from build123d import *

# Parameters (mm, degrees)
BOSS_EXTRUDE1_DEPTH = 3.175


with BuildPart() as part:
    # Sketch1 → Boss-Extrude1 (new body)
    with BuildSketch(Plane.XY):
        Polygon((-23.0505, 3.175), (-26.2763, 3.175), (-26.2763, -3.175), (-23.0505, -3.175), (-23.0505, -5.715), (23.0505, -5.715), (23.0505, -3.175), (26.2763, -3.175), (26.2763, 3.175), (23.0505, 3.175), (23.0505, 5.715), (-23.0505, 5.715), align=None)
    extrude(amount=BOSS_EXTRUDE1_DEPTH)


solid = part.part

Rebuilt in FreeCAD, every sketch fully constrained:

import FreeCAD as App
import Part
import Sketcher

V = App.Vector
Q = App.Units.Quantity


def add_polygon(sketch, points):
    """Adds a closed chain of lines whose ends are joined by coincident constraints."""
    first, n = sketch.GeometryCount, len(points)
    for a, b in zip(points, points[1:] + points[:1]):
        sketch.addGeometry(Part.LineSegment(App.Vector(*a, 0), App.Vector(*b, 0)), False)
    for i in range(n):
        sketch.addConstraint(Sketcher.Constraint("Coincident", first + i, 2, first + (i + 1) % n, 1))

doc = App.newDocument("Part")
params = doc.addObject("Spreadsheet::Sheet", "Params")
for row, (alias, value) in enumerate([
    ("sketch1_height", "0.1 in"),
    ("sketch1_height2", "0.25 in"),
    ("sketch1_width", "0.127 in"),
    ("sketch1_width2", "1.815 in"),
    ("pad1_length", "0.125 in"),
], start=1):
    params.set(f"A{row}", alias)
    params.set(f"B{row}", "=" + value)
    params.setAlias(f"B{row}", alias)

body = doc.addObject("PartDesign::Body", "Body")

sketch1 = body.newObject("Sketcher::SketchObject", "Sketch")
sketch1.AttachmentSupport = (doc.getObject("XY_Plane"), [""])
sketch1.MapMode = "FlatFace"
add_polygon(sketch1, [(-23.0505, 3.175), (-26.2763, 3.175), (-26.2763, -3.175), (-23.0505, -3.175), (-23.0505, -5.715), (23.0505, -5.715), (23.0505, -3.175), (26.2763, -3.175), (26.2763, 3.175), (23.0505, 3.175), (23.0505, 5.715), (-23.0505, 5.715)])
sketch1.addConstraint([
    Sketcher.Constraint("Horizontal", 0),
    Sketcher.Constraint("Vertical", 1),
    Sketcher.Constraint("Horizontal", 2),
    Sketcher.Constraint("Vertical", 3),
    Sketcher.Constraint("Horizontal", 4),
    Sketcher.Constraint("Vertical", 5),
    Sketcher.Constraint("Horizontal", 6),
    Sketcher.Constraint("Vertical", 7),
    Sketcher.Constraint("Horizontal", 8),
    Sketcher.Constraint("Vertical", 9),
    Sketcher.Constraint("Horizontal", 10),
    Sketcher.Constraint("Vertical", 11),
    Sketcher.Constraint("Symmetric", 0, 2, 6, 2, -1, 1),
    Sketcher.Constraint("Symmetric", 2, 2, 8, 2, -1, 1),
    Sketcher.Constraint("Symmetric", 4, 2, 10, 2, -1, 1),
    Sketcher.Constraint("Symmetric", 2, 2, 5, 2, -2),
    Sketcher.Constraint("DistanceY", 3, 2, 3, 1, Q("0.1 in")),
    Sketcher.Constraint("DistanceY", 1, 2, 1, 1, Q("0.25 in")),
    Sketcher.Constraint("DistanceX", 0, 2, 0, 1, Q("0.127 in")),
    Sketcher.Constraint("DistanceX", 4, 1, 4, 2, Q("1.815 in")),
])
sketch1.setExpression("Constraints[28]", "Params.sketch1_height")
sketch1.setExpression("Constraints[29]", "Params.sketch1_height2")
sketch1.setExpression("Constraints[30]", "Params.sketch1_width")
sketch1.setExpression("Constraints[31]", "Params.sketch1_width2")
pad1 = body.newObject("PartDesign::Pad", "Pad")
pad1.Profile = sketch1
pad1.setExpression("Length", "Params.pad1_length")

doc.recompute()
